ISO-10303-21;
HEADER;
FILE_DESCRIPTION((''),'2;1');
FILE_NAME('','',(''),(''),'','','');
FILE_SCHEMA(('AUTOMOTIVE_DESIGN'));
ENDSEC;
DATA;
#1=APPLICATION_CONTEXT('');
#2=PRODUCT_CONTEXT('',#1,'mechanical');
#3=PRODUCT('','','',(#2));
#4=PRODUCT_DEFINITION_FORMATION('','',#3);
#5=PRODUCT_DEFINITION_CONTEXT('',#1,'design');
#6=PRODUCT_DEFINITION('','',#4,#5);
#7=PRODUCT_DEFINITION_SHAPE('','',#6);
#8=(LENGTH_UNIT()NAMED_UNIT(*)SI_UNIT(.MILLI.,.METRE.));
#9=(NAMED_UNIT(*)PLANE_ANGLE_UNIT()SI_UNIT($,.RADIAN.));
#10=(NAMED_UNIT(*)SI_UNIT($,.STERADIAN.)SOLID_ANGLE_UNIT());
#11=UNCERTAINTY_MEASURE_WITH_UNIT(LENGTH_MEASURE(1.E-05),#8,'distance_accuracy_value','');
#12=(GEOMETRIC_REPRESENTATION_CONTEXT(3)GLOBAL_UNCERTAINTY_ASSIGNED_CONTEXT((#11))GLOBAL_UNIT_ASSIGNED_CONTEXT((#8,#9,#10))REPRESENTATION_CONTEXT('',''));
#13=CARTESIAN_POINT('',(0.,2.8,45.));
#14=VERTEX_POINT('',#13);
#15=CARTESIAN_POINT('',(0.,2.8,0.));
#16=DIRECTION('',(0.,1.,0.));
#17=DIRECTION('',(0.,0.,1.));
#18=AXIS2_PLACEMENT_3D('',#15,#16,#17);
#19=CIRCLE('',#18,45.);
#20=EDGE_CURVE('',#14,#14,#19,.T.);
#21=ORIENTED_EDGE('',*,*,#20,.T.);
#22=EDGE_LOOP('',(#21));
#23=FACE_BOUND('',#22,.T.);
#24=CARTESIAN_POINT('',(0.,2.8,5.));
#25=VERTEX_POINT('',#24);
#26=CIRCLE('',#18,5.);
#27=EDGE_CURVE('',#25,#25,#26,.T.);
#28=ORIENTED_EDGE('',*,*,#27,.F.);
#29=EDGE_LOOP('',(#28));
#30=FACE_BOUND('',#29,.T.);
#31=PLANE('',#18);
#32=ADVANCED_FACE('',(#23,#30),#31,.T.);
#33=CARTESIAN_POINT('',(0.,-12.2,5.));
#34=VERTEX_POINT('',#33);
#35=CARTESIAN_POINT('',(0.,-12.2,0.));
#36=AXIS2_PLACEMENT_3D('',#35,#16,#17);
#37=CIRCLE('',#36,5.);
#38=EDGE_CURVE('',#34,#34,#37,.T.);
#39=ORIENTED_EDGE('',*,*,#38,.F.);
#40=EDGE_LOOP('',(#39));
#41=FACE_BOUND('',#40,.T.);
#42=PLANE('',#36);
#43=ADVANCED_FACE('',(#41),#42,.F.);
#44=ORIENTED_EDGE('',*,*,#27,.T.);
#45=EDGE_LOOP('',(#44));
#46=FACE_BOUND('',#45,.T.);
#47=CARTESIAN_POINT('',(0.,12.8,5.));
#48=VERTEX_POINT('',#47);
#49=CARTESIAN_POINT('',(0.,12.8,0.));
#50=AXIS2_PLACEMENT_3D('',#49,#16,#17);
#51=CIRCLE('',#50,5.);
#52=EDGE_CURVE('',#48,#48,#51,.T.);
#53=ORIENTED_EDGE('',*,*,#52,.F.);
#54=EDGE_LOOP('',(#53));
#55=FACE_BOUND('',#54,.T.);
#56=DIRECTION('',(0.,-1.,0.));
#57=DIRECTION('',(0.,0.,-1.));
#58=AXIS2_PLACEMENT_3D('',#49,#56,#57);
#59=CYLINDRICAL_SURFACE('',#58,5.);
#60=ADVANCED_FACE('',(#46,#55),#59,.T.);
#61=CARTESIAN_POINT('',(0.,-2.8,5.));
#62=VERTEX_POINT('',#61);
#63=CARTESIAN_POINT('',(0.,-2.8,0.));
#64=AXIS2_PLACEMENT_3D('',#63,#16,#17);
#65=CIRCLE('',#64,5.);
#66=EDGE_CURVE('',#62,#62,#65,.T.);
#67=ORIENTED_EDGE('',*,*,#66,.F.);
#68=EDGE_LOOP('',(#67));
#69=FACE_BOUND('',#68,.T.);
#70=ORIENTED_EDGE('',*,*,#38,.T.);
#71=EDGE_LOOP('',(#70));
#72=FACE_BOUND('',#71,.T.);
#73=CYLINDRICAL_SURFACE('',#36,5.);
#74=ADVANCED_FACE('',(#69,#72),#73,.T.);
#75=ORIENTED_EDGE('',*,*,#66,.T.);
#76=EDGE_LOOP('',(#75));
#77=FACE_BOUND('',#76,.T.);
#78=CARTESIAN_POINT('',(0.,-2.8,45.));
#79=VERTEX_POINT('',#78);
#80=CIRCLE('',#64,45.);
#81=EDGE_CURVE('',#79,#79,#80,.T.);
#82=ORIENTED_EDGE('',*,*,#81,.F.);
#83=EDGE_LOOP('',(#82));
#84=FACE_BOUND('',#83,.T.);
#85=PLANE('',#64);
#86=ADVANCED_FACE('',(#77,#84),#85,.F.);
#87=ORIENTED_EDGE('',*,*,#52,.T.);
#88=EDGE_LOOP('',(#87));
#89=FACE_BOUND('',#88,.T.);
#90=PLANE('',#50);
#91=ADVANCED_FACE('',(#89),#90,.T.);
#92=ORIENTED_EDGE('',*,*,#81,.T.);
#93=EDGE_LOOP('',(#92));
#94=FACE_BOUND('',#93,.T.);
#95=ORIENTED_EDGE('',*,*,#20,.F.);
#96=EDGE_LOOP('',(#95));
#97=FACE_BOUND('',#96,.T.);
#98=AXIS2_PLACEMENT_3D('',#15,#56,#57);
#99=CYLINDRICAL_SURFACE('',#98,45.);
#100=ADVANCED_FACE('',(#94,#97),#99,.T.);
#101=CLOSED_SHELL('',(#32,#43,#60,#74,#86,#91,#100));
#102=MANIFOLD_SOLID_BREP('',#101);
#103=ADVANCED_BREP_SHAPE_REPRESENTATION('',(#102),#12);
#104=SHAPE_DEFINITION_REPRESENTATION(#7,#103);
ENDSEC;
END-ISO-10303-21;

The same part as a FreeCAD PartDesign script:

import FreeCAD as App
import Part
import Sketcher
Q = App.Units.Quantity

doc = App.newDocument("Part")
body = doc.addObject("PartDesign::Body", "Body")

# Sketch on XZ plane
sketch1 = body.newObject("Sketcher::SketchObject", "Sketch")
sketch1.AttachmentSupport = (doc.getObject("XZ_Plane"), [""])
sketch1.MapMode = "FlatFace"
sketch1.addGeometry(Part.Circle(App.Vector(0, 0, 0), App.Vector(0, 0, 1), 45), False)
sketch1.addConstraint([
    Sketcher.Constraint("Coincident", 0, 3, -1, 1),
    Sketcher.Constraint("Diameter", 0, Q("90 mm")),
])
pad1 = body.newObject("PartDesign::Pad", "Pad")
pad1.Profile = sketch1
pad1.Length = 5.6
pad1.Midplane = True

# Sketch on XZ plane
sketch2 = body.newObject("Sketcher::SketchObject", "Sketch001")
sketch2.AttachmentSupport = (doc.getObject("XZ_Plane"), [""])
sketch2.MapMode = "FlatFace"
sketch2.AttachmentOffset = App.Placement(App.Vector(0, 0, -2.8), App.Rotation())
sketch2.addGeometry(Part.Circle(App.Vector(0, 0, 0), App.Vector(0, 0, 1), 5), False)
sketch2.addConstraint([
    Sketcher.Constraint("Coincident", 0, 3, -1, 1),
    Sketcher.Constraint("Diameter", 0, Q("10 mm")),
])
pad2 = body.newObject("PartDesign::Pad", "Pad001")
pad2.Profile = sketch2
pad2.Length = 10
pad2.Reversed = True

# Sketch on XZ plane
sketch3 = body.newObject("Sketcher::SketchObject", "Sketch002")
sketch3.AttachmentSupport = (doc.getObject("XZ_Plane"), [""])
sketch3.MapMode = "FlatFace"
sketch3.AttachmentOffset = App.Placement(App.Vector(0, 0, -2.8), App.Rotation())
sketch3.addGeometry(Part.Circle(App.Vector(0, 0, 0), App.Vector(0, 0, 1), 5), False)
sketch3.addConstraint([
    Sketcher.Constraint("Coincident", 0, 3, -1, 1),
    Sketcher.Constraint("Diameter", 0, Q("10 mm")),
])
pad3 = body.newObject("PartDesign::Pad", "Pad002")
pad3.Profile = sketch3
pad3.Length = 15

doc.recompute()
